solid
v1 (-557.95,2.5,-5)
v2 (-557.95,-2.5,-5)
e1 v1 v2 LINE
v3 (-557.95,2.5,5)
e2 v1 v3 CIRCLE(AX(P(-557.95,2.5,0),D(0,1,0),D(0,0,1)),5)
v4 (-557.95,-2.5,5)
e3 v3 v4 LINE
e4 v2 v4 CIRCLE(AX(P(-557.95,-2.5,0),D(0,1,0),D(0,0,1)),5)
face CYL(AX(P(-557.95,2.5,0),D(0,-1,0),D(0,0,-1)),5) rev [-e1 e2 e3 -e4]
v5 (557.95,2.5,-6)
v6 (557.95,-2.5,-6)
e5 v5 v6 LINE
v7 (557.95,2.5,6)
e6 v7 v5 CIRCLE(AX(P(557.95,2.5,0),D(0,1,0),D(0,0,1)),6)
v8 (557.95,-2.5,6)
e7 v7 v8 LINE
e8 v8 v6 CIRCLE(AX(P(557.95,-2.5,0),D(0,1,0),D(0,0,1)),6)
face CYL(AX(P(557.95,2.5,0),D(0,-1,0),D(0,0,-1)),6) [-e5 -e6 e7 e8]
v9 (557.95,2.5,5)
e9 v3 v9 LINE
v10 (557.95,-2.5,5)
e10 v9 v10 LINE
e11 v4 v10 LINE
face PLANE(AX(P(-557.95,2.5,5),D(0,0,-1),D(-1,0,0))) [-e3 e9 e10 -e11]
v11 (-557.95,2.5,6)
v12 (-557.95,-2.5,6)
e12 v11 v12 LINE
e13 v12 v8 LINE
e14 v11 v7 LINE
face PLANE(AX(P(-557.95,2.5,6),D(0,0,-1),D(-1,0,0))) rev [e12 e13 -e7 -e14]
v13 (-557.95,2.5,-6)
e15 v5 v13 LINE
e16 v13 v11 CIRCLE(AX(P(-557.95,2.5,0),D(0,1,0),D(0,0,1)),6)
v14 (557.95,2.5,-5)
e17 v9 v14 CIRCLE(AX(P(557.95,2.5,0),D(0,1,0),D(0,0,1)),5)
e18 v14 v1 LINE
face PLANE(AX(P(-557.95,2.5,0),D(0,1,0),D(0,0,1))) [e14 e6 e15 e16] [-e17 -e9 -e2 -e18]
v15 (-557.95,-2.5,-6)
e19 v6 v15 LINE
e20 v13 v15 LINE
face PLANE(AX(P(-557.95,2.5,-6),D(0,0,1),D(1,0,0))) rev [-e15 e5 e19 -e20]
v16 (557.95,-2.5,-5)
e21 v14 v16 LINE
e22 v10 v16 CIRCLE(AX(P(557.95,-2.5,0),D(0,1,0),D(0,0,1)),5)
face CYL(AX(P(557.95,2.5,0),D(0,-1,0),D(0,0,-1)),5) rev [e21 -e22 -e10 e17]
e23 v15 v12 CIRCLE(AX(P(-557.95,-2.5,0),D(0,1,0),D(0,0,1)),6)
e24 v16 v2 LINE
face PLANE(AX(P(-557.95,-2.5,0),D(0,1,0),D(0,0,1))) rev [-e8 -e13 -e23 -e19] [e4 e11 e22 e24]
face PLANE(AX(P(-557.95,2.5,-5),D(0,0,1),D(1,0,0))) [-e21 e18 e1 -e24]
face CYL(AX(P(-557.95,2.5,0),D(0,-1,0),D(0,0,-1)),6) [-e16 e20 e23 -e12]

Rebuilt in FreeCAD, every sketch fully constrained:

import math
import FreeCAD as App
import Part
import Sketcher

V = App.Vector

doc = App.newDocument("Part")
params = doc.addObject("Spreadsheet::Sheet", "Params")
for row, (alias, value) in enumerate([
    ("sketch1_radius", "6 mm"),
    ("sketch1_radius2", "5 mm"),
    ("sketch1_width", "1115.9 mm"),
    ("pad1_length", "5 mm"),
], start=1):
    params.set(f"A{row}", alias)
    params.set(f"B{row}", "=" + value)
    params.setAlias(f"B{row}", alias)

body = doc.addObject("PartDesign::Body", "Body")

# Sketch on XZ plane
sketch1 = body.newObject("Sketcher::SketchObject", "Sketch")
sketch1.AttachmentSupport = (doc.getObject("XZ_Plane"), [""])
sketch1.MapMode = "FlatFace"
sketch1.addGeometry([
    Part.LineSegment(V(557.95, -6, 0), V(-557.95, -6, 0)),  # 0
    Part.ArcOfCircle(Part.Circle(V(-557.95, 0, 0), V(0, 0, 1), 6), math.radians(90), math.radians(270)),  # 1
    Part.LineSegment(V(-557.95, 6, 0), V(557.95, 6, 0)),  # 2
    Part.ArcOfCircle(Part.Circle(V(557.95, 0, 0), V(0, 0, 1), 6), math.radians(-90), math.radians(90)),  # 3
    Part.LineSegment(V(-557.95, -5, 0), V(557.95, -5, 0)),  # 4
    Part.ArcOfCircle(Part.Circle(V(557.95, 0, 0), V(0, 0, 1), 5), math.radians(-90), math.radians(90)),  # 5
    Part.LineSegment(V(557.95, 5, 0), V(-557.95, 5, 0)),  # 6
    Part.ArcOfCircle(Part.Circle(V(-557.95, 0, 0), V(0, 0, 1), 5), math.radians(90), math.radians(270)),  # 7
], False)
sketch1.addConstraint([
    Sketcher.Constraint("Tangent", 0, 2, 1, 2),
    Sketcher.Constraint("Tangent", 1, 1, 2, 1),
    Sketcher.Constraint("Tangent", 2, 2, 3, 2),
    Sketcher.Constraint("Tangent", 3, 1, 0, 1),
    Sketcher.Constraint("Tangent", 4, 2, 5, 1),
    Sketcher.Constraint("Tangent", 5, 2, 6, 1),
    Sketcher.Constraint("Tangent", 6, 2, 7, 1),
    Sketcher.Constraint("Tangent", 7, 2, 4, 1),
    Sketcher.Constraint("Horizontal", 0),
    Sketcher.Constraint("Horizontal", 2),
    Sketcher.Constraint("Horizontal", 4),
    Sketcher.Constraint("Horizontal", 6),
    Sketcher.Constraint("Coincident", 5, 3, 3, 3),
    Sketcher.Constraint("Symmetric", 1, 3, 3, 3, -1, 1),
    Sketcher.Constraint("Vertical", 7, 3, 0, 2),
    Sketcher.Constraint("Radius", 1, 6.0),
    Sketcher.Constraint("Radius", 5, 5.0),
    Sketcher.Constraint("DistanceX", 0, 2, 0, 1, 1115.9),
])
sketch1.setExpression("Constraints[15]", "Params.sketch1_radius")
sketch1.setExpression("Constraints[16]", "Params.sketch1_radius2")
sketch1.setExpression("Constraints[17]", "Params.sketch1_width")
pad1 = body.newObject("PartDesign::Pad", "Pad")
pad1.Profile = sketch1
pad1.setExpression("Length", "Params.pad1_length")
pad1.Midplane = True

doc.recompute()
